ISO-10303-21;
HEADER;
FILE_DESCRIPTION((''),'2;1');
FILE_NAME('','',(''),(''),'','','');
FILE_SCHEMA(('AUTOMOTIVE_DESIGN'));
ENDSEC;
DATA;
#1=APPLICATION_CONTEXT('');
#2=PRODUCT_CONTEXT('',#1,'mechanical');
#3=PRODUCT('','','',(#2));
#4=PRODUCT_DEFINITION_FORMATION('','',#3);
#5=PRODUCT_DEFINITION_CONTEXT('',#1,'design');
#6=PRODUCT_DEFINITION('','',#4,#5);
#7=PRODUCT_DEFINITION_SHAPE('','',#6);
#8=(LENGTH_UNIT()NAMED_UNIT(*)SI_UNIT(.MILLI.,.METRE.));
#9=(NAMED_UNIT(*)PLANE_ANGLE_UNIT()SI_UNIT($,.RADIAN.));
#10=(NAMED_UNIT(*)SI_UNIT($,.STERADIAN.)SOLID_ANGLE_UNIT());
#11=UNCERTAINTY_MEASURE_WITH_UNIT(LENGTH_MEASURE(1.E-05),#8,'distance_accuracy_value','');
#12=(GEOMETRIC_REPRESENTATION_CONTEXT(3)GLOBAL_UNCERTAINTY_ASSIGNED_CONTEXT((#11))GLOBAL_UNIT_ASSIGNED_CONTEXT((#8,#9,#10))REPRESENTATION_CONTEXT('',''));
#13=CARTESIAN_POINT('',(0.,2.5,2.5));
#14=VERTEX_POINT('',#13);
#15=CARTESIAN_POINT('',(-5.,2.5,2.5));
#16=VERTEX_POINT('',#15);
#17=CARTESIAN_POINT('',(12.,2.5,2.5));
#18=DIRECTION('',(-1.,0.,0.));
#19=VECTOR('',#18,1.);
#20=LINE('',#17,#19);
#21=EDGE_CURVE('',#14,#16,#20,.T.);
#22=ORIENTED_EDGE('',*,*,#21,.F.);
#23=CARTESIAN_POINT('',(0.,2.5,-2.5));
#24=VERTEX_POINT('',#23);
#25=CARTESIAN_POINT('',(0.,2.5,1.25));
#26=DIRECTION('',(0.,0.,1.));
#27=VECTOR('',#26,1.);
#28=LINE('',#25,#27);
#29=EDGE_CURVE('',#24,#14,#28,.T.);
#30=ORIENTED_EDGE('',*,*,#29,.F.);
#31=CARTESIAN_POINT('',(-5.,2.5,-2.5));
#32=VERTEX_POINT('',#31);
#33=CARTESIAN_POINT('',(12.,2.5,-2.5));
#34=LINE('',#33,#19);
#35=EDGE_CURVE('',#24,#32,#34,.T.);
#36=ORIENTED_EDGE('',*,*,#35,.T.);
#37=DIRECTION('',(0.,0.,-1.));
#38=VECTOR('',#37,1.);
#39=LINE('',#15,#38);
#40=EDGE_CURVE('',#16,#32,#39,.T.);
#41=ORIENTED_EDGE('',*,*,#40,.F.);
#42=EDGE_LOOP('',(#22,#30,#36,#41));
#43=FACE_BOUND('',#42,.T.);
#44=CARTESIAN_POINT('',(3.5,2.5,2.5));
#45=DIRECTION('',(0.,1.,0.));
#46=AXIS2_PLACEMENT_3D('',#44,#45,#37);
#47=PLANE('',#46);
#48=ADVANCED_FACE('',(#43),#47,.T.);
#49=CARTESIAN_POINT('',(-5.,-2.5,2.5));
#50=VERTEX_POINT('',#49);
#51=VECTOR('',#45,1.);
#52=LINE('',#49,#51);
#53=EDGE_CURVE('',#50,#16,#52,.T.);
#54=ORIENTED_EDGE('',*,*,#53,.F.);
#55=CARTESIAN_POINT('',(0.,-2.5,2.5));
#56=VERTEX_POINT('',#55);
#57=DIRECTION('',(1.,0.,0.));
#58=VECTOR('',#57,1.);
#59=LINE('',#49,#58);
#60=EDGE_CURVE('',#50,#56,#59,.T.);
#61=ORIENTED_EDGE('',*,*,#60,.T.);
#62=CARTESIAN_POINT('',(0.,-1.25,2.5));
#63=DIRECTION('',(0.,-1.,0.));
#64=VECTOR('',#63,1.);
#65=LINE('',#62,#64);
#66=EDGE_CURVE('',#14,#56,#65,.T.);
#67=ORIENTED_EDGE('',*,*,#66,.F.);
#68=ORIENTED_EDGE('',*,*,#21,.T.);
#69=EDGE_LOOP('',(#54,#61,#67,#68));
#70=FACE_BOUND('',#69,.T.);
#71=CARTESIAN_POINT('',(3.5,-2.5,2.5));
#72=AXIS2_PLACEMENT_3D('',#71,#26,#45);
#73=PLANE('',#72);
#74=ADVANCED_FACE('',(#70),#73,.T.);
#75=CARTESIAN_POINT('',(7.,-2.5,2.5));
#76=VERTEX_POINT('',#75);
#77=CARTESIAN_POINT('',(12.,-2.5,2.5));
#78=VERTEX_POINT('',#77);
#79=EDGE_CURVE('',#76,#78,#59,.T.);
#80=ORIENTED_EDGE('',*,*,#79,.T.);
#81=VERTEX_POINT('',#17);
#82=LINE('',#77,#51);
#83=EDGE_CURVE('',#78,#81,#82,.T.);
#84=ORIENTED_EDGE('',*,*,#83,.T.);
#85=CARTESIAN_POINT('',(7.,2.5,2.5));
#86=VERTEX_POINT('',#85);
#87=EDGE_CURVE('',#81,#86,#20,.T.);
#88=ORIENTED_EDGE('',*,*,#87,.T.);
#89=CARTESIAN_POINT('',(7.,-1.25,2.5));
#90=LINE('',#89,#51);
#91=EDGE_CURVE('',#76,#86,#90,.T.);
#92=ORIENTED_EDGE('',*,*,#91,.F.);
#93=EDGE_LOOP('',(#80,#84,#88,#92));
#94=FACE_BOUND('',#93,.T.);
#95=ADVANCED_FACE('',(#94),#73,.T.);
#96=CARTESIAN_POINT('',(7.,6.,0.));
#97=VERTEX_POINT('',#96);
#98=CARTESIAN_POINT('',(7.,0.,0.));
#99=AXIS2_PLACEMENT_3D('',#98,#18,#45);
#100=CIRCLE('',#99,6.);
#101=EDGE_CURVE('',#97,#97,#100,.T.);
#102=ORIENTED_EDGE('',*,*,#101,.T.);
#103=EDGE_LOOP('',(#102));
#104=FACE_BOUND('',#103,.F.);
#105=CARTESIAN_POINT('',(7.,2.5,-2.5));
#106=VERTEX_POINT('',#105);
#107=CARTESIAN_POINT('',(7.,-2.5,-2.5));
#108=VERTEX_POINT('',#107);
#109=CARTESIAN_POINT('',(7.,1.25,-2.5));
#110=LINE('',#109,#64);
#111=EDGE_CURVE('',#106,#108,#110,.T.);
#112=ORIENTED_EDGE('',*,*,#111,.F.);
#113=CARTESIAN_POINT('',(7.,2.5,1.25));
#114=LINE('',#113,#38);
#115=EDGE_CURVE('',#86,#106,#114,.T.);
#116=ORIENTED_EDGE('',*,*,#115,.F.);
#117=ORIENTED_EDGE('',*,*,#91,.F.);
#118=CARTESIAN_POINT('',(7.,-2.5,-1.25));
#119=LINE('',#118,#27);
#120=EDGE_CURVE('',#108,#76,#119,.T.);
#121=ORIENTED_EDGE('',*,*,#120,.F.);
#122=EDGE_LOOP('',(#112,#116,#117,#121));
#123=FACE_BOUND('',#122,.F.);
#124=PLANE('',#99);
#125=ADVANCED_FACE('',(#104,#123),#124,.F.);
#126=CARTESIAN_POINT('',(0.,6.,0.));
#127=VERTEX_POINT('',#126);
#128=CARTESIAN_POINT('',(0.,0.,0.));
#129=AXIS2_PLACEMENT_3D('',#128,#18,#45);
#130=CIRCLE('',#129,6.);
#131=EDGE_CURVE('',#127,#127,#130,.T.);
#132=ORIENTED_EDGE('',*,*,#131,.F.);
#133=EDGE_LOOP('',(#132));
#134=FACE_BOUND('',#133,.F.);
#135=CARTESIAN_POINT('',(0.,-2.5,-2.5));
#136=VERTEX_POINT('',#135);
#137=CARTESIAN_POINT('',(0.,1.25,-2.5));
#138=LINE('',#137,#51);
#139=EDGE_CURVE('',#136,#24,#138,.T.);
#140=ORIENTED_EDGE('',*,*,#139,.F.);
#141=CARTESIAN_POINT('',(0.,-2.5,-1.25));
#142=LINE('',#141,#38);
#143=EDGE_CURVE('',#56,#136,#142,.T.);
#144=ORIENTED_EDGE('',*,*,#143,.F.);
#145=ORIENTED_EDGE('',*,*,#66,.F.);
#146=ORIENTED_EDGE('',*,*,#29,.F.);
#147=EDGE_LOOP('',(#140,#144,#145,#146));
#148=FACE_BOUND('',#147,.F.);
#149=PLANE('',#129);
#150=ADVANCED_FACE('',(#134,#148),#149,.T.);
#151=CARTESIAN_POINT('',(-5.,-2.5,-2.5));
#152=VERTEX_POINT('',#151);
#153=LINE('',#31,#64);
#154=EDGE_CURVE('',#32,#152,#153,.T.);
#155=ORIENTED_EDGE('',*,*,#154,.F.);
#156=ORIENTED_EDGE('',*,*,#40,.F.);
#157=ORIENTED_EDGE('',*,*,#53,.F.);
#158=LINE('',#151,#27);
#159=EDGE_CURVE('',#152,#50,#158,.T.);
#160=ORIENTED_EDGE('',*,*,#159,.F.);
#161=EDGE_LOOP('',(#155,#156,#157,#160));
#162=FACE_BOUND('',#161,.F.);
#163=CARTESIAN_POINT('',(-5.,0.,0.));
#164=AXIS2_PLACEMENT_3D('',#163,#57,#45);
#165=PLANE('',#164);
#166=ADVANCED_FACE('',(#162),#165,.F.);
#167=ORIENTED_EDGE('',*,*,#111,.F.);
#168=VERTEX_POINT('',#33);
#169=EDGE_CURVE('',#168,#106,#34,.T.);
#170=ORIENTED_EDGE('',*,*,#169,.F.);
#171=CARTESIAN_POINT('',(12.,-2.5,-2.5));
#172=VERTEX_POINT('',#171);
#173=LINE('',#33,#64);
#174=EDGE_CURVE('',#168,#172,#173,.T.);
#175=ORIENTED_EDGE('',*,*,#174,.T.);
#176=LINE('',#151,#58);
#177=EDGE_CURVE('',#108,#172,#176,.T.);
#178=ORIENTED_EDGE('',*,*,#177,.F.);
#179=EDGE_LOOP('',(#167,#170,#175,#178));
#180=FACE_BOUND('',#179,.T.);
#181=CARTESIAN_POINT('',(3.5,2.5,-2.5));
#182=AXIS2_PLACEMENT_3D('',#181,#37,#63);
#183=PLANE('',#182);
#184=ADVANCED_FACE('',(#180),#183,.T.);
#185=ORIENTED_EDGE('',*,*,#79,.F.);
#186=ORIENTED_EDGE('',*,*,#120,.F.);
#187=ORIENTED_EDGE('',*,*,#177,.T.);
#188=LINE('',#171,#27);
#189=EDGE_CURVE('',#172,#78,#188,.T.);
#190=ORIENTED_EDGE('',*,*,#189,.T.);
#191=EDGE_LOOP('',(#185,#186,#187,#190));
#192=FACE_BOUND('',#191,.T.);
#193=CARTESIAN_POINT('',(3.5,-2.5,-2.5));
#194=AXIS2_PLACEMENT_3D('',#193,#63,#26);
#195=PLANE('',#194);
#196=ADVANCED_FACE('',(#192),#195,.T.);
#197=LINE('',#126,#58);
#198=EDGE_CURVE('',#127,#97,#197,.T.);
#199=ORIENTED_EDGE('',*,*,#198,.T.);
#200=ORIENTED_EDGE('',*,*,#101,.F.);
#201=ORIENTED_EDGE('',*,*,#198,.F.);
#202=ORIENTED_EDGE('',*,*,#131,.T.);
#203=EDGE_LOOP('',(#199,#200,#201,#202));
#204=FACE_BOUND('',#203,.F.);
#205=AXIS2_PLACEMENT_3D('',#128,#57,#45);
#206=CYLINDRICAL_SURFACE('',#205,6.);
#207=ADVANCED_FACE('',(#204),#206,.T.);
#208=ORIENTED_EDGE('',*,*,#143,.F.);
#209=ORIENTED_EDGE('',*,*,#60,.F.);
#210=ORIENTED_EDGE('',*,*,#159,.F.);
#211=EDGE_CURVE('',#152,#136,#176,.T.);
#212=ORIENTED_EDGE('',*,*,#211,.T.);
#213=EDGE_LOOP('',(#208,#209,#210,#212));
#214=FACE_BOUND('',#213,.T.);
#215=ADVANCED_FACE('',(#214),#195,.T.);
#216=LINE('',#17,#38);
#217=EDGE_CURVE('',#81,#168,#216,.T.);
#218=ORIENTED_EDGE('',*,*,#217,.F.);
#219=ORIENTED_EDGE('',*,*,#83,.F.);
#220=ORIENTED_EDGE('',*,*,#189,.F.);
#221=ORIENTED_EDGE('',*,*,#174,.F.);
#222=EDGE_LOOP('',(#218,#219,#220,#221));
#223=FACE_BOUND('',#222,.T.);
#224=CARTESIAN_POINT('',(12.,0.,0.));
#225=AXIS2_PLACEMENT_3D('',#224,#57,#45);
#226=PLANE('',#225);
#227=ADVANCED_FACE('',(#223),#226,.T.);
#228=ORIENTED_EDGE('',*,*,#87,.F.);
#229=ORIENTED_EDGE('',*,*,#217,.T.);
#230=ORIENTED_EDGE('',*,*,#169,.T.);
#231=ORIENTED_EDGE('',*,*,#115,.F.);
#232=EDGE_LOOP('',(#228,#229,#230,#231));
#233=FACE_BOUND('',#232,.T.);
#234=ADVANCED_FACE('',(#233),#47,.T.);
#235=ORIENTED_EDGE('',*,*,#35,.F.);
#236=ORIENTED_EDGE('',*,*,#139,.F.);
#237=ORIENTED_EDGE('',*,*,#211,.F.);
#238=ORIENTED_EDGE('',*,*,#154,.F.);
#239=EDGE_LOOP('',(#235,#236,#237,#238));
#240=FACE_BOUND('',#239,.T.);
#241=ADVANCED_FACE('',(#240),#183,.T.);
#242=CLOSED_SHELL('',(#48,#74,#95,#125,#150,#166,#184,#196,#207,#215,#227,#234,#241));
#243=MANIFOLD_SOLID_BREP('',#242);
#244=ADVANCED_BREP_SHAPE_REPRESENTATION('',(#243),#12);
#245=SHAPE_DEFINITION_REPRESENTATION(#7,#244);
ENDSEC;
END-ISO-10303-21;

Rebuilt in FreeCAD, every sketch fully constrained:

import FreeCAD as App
import Part
import Sketcher
Q = App.Units.Quantity


def add_polygon(sketch, points):
    """Adds a closed chain of lines whose ends are joined by coincident constraints."""
    first, n = sketch.GeometryCount, len(points)
    for a, b in zip(points, points[1:] + points[:1]):
        sketch.addGeometry(Part.LineSegment(App.Vector(*a, 0), App.Vector(*b, 0)), False)
    for i in range(n):
        sketch.addConstraint(Sketcher.Constraint("Coincident", first + i, 2, first + (i + 1) % n, 1))

doc = App.newDocument("Part")
body = doc.addObject("PartDesign::Body", "Body")

# Sketch on XY plane
sketch1 = doc.addObject("Sketcher::SketchObject", "Sketch")
body.addObject(sketch1)
sketch1.AttachmentSupport = (doc.XY_Plane, [""])
sketch1.MapMode = "FlatFace"
add_polygon(sketch1, [(0, 6), (0, 0), (7, 0), (7, 6)])  # lines 0-3
sketch1.addConstraint(Sketcher.Constraint("Vertical", 0))
sketch1.addConstraint(Sketcher.Constraint("Horizontal", 1))
sketch1.addConstraint(Sketcher.Constraint("Vertical", 2))
sketch1.addConstraint(Sketcher.Constraint("Horizontal", 3))
sketch1.addConstraint(Sketcher.Constraint("Coincident", 0, 2, -1, 1))
sketch1.addConstraint(Sketcher.Constraint("DistanceX", 1, 1, 1, 2, Q("7 mm")))
sketch1.addConstraint(Sketcher.Constraint("DistanceY", 0, 2, 0, 1, Q("6 mm")))
revolution = doc.addObject("PartDesign::Revolution", "Revolution")
body.addObject(revolution)
revolution.Profile = sketch1
revolution.ReferenceAxis = (sketch1, ["H_Axis"])
revolution.Angle = 360

# Sketch on YZ plane
sketch2 = doc.addObject("Sketcher::SketchObject", "Sketch001")
body.addObject(sketch2)
sketch2.AttachmentSupport = (doc.YZ_Plane, [""])
sketch2.MapMode = "FlatFace"
sketch2.AttachmentOffset = App.Placement(App.Vector(0, 0, 3.5), App.Rotation())
add_polygon(sketch2, [(2, 2), (-2, 2), (-2, -2), (2, -2)])  # lines 0-3
sketch2.addConstraint(Sketcher.Constraint("Horizontal", 0))
sketch2.addConstraint(Sketcher.Constraint("Vertical", 1))
sketch2.addConstraint(Sketcher.Constraint("Horizontal", 2))
sketch2.addConstraint(Sketcher.Constraint("Vertical", 3))
sketch2.addConstraint(Sketcher.Constraint("Symmetric", 0, 2, 2, 2, -1, 1))
sketch2.addConstraint(Sketcher.Constraint("Equal", 2, 1))
sketch2.addConstraint(Sketcher.Constraint("DistanceX", 0, 2, 0, 1, Q("5 mm")))
pad1 = doc.addObject("PartDesign::Pad", "Pad")
body.addObject(pad1)
pad1.Profile = sketch2
pad1.Length = 17
pad1.Midplane = True

doc.recompute()
